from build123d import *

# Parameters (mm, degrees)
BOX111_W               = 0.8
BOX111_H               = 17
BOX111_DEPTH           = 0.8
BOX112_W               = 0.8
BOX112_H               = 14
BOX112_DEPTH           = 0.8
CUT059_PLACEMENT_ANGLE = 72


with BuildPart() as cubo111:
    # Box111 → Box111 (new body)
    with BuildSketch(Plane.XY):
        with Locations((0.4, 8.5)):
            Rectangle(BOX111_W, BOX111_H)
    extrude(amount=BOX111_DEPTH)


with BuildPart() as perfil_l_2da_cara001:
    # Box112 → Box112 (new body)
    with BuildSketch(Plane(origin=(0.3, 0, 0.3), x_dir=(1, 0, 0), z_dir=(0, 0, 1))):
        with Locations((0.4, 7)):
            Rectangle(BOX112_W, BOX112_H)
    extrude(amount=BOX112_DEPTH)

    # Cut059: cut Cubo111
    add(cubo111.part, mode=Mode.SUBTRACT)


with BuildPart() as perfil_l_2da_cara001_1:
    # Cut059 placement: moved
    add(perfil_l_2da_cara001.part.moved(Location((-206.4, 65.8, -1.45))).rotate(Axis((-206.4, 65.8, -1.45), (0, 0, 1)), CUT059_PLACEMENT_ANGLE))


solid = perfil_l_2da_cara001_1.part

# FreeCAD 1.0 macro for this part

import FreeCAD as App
import Part
import Sketcher

doc = App.newDocument("Part")
body = doc.addObject("PartDesign::Body", "Body")

# Sketch on XY plane
sketch1 = body.newObject("Sketcher::SketchObject", "Sketch")
sketch1.AttachmentSupport = (doc.getObject("XY_Plane"), [""])
sketch1.MapMode = "FlatFace"
sketch1.addGeometry(Part.LineSegment(App.Vector(0, 17, 0), App.Vector(0, 0, 0)), False)
sketch1.addGeometry(Part.LineSegment(App.Vector(0, 0, 0), App.Vector(0.8, 0, 0)), False)
sketch1.addGeometry(Part.LineSegment(App.Vector(0.8, 0, 0), App.Vector(0.8, 17, 0)), False)
sketch1.addGeometry(Part.LineSegment(App.Vector(0.8, 17, 0), App.Vector(0, 17, 0)), False)
sketch1.addConstraint(Sketcher.Constraint("Coincident", 0, 2, 1, 1))
sketch1.addConstraint(Sketcher.Constraint("Coincident", 1, 2, 2, 1))
sketch1.addConstraint(Sketcher.Constraint("Coincident", 2, 2, 3, 1))
sketch1.addConstraint(Sketcher.Constraint("Coincident", 3, 2, 0, 1))
sketch1.addConstraint(Sketcher.Constraint("Vertical", 0))
sketch1.addConstraint(Sketcher.Constraint("Horizontal", 1))
sketch1.addConstraint(Sketcher.Constraint("Vertical", 2))
sketch1.addConstraint(Sketcher.Constraint("Horizontal", 3))
sketch1.addConstraint(Sketcher.Constraint("Coincident", 0, 2, -1, 1))
sketch1.addConstraint(Sketcher.Constraint("DistanceY", 0, 2, 0, 1, 17.0))
sketch1.addConstraint(Sketcher.Constraint("DistanceX", 1, 1, 1, 2, 0.8))
pad1 = body.newObject("PartDesign::Pad", "Pad")
pad1.Profile = sketch1
pad1.Length = 0.8
body2 = doc.addObject("PartDesign::Body", "Body001")

# Sketch on XY plane
sketch2 = body2.newObject("Sketcher::SketchObject", "Sketch001")
sketch2.AttachmentSupport = (doc.getObject("XY_Plane001"), [""])
sketch2.MapMode = "FlatFace"
sketch2.AttachmentOffset = App.Placement(App.Vector(0, 0, 0.3), App.Rotation())
sketch2.addGeometry(Part.LineSegment(App.Vector(0.3, 14, 0), App.Vector(0.3, 0, 0)), False)
sketch2.addGeometry(Part.LineSegment(App.Vector(0.3, 0, 0), App.Vector(1.1, 0, 0)), False)
sketch2.addGeometry(Part.LineSegment(App.Vector(1.1, 0, 0), App.Vector(1.1, 14, 0)), False)
sketch2.addGeometry(Part.LineSegment(App.Vector(1.1, 14, 0), App.Vector(0.3, 14, 0)), False)
sketch2.addConstraint(Sketcher.Constraint("Coincident", 0, 2, 1, 1))
sketch2.addConstraint(Sketcher.Constraint("Coincident", 1, 2, 2, 1))
sketch2.addConstraint(Sketcher.Constraint("Coincident", 2, 2, 3, 1))
sketch2.addConstraint(Sketcher.Constraint("Coincident", 3, 2, 0, 1))
sketch2.addConstraint(Sketcher.Constraint("Vertical", 0))
sketch2.addConstraint(Sketcher.Constraint("Horizontal", 1))
sketch2.addConstraint(Sketcher.Constraint("Vertical", 2))
sketch2.addConstraint(Sketcher.Constraint("Horizontal", 3))
sketch2.addConstraint(Sketcher.Constraint("PointOnObject", 0, 2, -1))
sketch2.addConstraint(Sketcher.Constraint("DistanceY", 0, 2, 0, 1, 14.0))
sketch2.addConstraint(Sketcher.Constraint("DistanceX", 1, 1, 1, 2, 0.8))
sketch2.addConstraint(Sketcher.Constraint("DistanceX", -1, 1, 0, 2, 0.3))
pad2 = body2.newObject("PartDesign::Pad", "Pad001")
pad2.Profile = sketch2
pad2.Length = 0.8
doc.recompute()

boolean = body2.newObject("PartDesign::Boolean", "Boolean")
boolean.Type = "Cut"
boolean.addObjects([body])
body3 = doc.addObject("PartDesign::Body", "Body002")
doc.recompute()

body2.Placement = App.Placement(App.Vector(-206.4, 65.8, -1.45), App.Rotation(App.Vector(0, 0, 1), 72))
boolean2 = body3.newObject("PartDesign::Boolean", "Boolean001")
boolean2.Type = "Fuse"
boolean2.addObjects([body2])

doc.recompute()
